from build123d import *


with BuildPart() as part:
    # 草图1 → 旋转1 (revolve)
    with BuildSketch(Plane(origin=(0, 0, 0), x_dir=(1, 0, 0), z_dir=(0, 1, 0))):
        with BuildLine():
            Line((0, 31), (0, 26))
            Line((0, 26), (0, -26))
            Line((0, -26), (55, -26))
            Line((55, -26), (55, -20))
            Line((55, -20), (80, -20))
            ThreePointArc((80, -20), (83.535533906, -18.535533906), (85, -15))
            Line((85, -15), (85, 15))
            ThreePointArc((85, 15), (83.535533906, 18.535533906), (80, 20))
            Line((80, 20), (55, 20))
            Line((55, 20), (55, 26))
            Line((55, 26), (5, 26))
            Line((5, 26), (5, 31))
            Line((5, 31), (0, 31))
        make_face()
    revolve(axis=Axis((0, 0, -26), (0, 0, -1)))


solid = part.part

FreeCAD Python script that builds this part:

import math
import FreeCAD as App
import Part
import Sketcher
from FreeCAD import Vector
Q = App.Units.Quantity

doc = App.newDocument("Part")
params = doc.addObject("Spreadsheet::Sheet", "Params")
for row, (alias, value) in enumerate([
    ("sketch1_radius", "5 mm"),
    ("sketch1_width", "55 mm"),
    ("sketch1_width2", "25 mm"),
    ("sketch1_width3", "50 mm"),
    ("sketch1_height", "57 mm"),
    ("revolution_angle", "360 deg"),
], start=1):
    params.set(f"A{row}", alias)
    params.set(f"B{row}", "=" + value)
    params.setAlias(f"B{row}", alias)

body = doc.addObject("PartDesign::Body", "Body")

sketch1 = body.newObject("Sketcher::SketchObject", "Sketch")
sketch1.AttachmentSupport = (doc.getObject("XZ_Plane"), [""])
sketch1.MapMode = "FlatFace"
sketch1.addGeometry([
    Part.LineSegment(Vector(0, -31, 0), Vector(0, 26, 0)),
    Part.LineSegment(Vector(0, 26, 0), Vector(55, 26, 0)),
    Part.LineSegment(Vector(55, 26, 0), Vector(55, 20, 0)),
    Part.LineSegment(Vector(55, 20, 0), Vector(80, 20, 0)),
    Part.ArcOfCircle(Part.Circle(Vector(80, 15, 0), Vector(0, 0, 1), 5), math.radians(0), math.radians(90)),
    Part.LineSegment(Vector(85, 15, 0), Vector(85, -15, 0)),
    Part.ArcOfCircle(Part.Circle(Vector(80, -15, 0), Vector(0, 0, 1), 5), math.radians(-90), math.radians(0)),
    Part.LineSegment(Vector(80, -20, 0), Vector(55, -20, 0)),
    Part.LineSegment(Vector(55, -20, 0), Vector(55, -26, 0)),
    Part.LineSegment(Vector(55, -26, 0), Vector(5, -26, 0)),
    Part.LineSegment(Vector(5, -26, 0), Vector(5, -31, 0)),
    Part.LineSegment(Vector(5, -31, 0), Vector(0, -31, 0)),
], False)
sketch1.addConstraint([
    Sketcher.Constraint("Coincident", 0, 2, 1, 1),
    Sketcher.Constraint("Coincident", 1, 2, 2, 1),
    Sketcher.Constraint("Coincident", 2, 2, 3, 1),
    Sketcher.Constraint("Tangent", 3, 2, 4, 2),
    Sketcher.Constraint("Tangent", 4, 1, 5, 1),
    Sketcher.Constraint("Tangent", 5, 2, 6, 2),
    Sketcher.Constraint("Tangent", 6, 1, 7, 1),
    Sketcher.Constraint("Coincident", 7, 2, 8, 1),
    Sketcher.Constraint("Coincident", 8, 2, 9, 1),
    Sketcher.Constraint("Coincident", 9, 2, 10, 1),
    Sketcher.Constraint("Coincident", 10, 2, 11, 1),
    Sketcher.Constraint("Coincident", 11, 2, 0, 1),
    Sketcher.Constraint("Vertical", 0),
    Sketcher.Constraint("Horizontal", 1),
    Sketcher.Constraint("Vertical", 2),
    Sketcher.Constraint("Horizontal", 3),
    Sketcher.Constraint("Vertical", 5),
    Sketcher.Constraint("Horizontal", 7),
    Sketcher.Constraint("Vertical", 8),
    Sketcher.Constraint("Horizontal", 9),
    Sketcher.Constraint("Vertical", 10),
    Sketcher.Constraint("Horizontal", 11),
    Sketcher.Constraint("Equal", 4, 6),
    Sketcher.Constraint("Symmetric", 2, 2, 7, 2, -1),
    Sketcher.Constraint("PointOnObject", 0, 2, -2),
    Sketcher.Constraint("Equal", 2, 8),
    Sketcher.Constraint("Equal", 11, 10),
    Sketcher.Constraint("Radius", 4, Q("5 mm")),
    Sketcher.Constraint("DistanceX", 1, 1, 1, 2, Q("55 mm")),
    Sketcher.Constraint("DistanceX", 3, 1, 3, 2, Q("25 mm")),
    Sketcher.Constraint("DistanceX", 9, 2, 9, 1, Q("50 mm")),
    Sketcher.Constraint("DistanceY", 0, 1, 0, 2, Q("57 mm")),
    Sketcher.Constraint("DistanceY", 2, 2, 2, 1, Q("6 mm")),
])
sketch1.setExpression("Constraints[27]", "Params.sketch1_radius")
sketch1.setExpression("Constraints[28]", "Params.sketch1_width")
sketch1.setExpression("Constraints[29]", "Params.sketch1_width2")
sketch1.setExpression("Constraints[30]", "Params.sketch1_width3")
sketch1.setExpression("Constraints[31]", "Params.sketch1_height")
revolution = body.newObject("PartDesign::Revolution", "Revolution")
revolution.Profile = sketch1
revolution.ReferenceAxis = (sketch1, ["V_Axis"])
revolution.setExpression("Angle", "Params.revolution_angle")

doc.recompute()
